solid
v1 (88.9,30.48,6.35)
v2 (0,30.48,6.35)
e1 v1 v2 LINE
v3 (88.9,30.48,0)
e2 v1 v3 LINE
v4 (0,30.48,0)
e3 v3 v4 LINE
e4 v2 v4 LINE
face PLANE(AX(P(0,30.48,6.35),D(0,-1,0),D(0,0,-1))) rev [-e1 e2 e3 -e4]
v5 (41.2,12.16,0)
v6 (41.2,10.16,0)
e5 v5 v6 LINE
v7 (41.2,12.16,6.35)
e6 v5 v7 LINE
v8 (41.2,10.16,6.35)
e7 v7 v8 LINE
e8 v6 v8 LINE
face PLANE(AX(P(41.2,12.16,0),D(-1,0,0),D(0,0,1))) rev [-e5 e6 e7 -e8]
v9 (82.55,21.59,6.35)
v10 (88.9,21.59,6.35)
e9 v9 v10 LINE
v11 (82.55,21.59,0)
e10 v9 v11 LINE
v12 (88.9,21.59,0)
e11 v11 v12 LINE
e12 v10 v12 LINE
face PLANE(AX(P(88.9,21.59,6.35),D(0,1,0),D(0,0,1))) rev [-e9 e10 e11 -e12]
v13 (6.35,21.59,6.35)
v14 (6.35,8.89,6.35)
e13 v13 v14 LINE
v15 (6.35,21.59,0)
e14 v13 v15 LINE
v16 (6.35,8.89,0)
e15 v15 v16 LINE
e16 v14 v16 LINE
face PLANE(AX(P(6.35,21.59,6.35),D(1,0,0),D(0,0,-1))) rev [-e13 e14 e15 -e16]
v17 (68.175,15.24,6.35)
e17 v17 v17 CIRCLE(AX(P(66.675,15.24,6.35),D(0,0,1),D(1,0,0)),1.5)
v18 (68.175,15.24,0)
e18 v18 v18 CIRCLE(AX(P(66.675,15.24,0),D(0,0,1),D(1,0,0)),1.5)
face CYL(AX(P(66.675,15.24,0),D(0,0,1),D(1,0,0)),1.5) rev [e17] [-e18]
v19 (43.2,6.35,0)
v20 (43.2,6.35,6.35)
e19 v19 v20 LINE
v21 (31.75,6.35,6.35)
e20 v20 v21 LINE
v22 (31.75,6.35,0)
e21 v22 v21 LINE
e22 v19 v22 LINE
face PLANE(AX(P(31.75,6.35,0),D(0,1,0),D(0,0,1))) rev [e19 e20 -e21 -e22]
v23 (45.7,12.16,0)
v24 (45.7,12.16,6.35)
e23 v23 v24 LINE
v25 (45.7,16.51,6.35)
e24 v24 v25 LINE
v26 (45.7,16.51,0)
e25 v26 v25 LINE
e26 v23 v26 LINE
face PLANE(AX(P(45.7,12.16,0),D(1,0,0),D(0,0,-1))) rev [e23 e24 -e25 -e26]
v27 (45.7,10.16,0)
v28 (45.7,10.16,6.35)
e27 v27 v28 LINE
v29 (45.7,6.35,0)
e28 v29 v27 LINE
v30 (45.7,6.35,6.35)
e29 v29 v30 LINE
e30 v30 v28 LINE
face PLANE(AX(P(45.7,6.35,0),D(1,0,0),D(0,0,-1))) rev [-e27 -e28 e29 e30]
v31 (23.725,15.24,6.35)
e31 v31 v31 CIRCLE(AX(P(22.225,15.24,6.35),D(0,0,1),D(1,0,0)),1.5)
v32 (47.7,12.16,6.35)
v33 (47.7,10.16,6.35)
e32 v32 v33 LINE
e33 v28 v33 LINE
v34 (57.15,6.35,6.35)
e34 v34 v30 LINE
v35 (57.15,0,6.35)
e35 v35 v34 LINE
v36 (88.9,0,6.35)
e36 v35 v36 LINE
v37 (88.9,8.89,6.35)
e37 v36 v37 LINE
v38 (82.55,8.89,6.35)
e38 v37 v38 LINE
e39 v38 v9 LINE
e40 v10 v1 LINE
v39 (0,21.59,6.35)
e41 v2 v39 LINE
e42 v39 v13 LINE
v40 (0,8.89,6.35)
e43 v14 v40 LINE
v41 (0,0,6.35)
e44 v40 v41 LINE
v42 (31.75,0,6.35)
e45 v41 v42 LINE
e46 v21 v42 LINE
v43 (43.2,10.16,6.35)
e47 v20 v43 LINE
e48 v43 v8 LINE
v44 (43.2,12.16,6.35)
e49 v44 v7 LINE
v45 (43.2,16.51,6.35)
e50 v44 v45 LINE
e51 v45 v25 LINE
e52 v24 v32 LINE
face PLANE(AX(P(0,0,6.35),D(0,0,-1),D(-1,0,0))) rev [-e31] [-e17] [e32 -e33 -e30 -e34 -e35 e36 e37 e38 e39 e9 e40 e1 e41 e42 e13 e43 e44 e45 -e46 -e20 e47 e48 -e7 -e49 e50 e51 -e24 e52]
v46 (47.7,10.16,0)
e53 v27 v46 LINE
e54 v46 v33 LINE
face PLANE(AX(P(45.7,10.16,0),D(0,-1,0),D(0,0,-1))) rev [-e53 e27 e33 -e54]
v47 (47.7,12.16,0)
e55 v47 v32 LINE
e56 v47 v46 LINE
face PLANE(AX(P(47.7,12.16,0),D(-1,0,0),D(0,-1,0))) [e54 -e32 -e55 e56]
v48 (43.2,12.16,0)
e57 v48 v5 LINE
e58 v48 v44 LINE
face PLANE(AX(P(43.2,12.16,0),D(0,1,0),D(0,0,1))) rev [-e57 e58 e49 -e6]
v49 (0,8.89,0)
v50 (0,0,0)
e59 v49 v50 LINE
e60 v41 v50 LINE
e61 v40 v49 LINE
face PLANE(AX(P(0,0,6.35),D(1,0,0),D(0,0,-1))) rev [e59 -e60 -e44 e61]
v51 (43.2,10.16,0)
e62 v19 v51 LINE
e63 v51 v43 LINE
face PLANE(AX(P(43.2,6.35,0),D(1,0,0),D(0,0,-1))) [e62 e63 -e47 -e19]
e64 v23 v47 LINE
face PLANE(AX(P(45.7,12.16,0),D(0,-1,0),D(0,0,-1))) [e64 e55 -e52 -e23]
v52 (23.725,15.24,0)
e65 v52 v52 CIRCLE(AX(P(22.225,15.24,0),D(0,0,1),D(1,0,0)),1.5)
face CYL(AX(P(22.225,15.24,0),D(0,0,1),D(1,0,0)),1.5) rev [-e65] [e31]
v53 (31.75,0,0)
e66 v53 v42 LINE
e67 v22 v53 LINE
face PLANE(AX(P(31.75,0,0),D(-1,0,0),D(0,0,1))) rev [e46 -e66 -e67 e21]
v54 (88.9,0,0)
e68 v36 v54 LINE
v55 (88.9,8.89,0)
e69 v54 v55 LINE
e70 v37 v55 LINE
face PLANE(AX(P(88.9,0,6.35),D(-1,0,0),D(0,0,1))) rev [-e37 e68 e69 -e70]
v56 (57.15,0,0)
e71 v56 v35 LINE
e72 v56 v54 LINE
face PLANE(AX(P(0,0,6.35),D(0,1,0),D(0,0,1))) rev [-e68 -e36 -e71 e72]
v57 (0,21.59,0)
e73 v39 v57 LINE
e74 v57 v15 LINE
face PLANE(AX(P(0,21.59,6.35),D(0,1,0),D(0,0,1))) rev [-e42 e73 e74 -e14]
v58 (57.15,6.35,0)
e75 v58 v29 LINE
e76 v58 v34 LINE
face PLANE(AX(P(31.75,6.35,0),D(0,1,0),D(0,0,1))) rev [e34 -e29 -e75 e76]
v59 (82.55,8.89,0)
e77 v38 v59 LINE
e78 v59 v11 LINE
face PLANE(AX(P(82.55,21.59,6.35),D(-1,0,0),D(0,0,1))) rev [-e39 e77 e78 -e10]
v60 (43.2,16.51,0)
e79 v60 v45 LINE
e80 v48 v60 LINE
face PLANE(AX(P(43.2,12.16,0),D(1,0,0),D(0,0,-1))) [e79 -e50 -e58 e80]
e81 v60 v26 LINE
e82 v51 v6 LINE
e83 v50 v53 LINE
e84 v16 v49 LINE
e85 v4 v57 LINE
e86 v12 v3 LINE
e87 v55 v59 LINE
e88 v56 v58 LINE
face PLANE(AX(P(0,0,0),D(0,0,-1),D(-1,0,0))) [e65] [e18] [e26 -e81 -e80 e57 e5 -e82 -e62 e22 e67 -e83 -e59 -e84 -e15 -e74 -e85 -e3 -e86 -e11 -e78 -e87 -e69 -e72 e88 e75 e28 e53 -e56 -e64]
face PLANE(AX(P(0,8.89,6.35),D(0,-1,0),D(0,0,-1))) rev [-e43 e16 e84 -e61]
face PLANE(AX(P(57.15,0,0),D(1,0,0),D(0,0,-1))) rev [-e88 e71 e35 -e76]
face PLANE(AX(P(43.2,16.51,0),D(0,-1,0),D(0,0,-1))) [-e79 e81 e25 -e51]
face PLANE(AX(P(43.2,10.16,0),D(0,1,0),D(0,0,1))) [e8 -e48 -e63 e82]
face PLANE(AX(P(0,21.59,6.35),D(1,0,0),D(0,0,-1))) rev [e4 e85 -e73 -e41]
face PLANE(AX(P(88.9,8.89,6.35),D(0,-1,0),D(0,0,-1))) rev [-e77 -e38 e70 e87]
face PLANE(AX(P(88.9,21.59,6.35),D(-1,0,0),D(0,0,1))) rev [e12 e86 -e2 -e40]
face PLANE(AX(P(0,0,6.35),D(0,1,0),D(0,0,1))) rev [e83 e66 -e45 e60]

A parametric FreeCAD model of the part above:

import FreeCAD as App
import Part
import Sketcher
Q = App.Units.Quantity

doc = App.newDocument("Part")
body = doc.addObject("PartDesign::Body", "Body")

# Sketch on XY plane
sketch1 = body.newObject("Sketcher::SketchObject", "Sketch")
sketch1.AttachmentSupport = (doc.getObject("XY_Plane"), [""])
sketch1.MapMode = "FlatFace"
sketch1.addGeometry(Part.LineSegment(App.Vector(0, 30, 0), App.Vector(0, 22, 0)), False)
sketch1.addGeometry(Part.LineSegment(App.Vector(0, 22, 0), App.Vector(6, 22, 0)), False)
sketch1.addGeometry(Part.LineSegment(App.Vector(6, 22, 0), App.Vector(6, 9, 0)), False)
sketch1.addGeometry(Part.LineSegment(App.Vector(6, 9, 0), App.Vector(0, 9, 0)), False)
sketch1.addGeometry(Part.LineSegment(App.Vector(0, 9, 0), App.Vector(0, 0, 0)), False)
sketch1.addGeometry(Part.LineSegment(App.Vector(0, 0, 0), App.Vector(89, 0, 0)), False)
sketch1.addGeometry(Part.LineSegment(App.Vector(89, 0, 0), App.Vector(89, 9, 0)), False)
sketch1.addGeometry(Part.LineSegment(App.Vector(89, 9, 0), App.Vector(83, 9, 0)), False)
sketch1.addGeometry(Part.LineSegment(App.Vector(83, 9, 0), App.Vector(83, 22, 0)), False)
sketch1.addGeometry(Part.LineSegment(App.Vector(83, 22, 0), App.Vector(89, 22, 0)), False)
sketch1.addGeometry(Part.LineSegment(App.Vector(89, 22, 0), App.Vector(89, 30, 0)), False)
sketch1.addGeometry(Part.LineSegment(App.Vector(89, 30, 0), App.Vector(0, 30, 0)), False)
sketch1.addConstraint(Sketcher.Constraint("Coincident", 0, 2, 1, 1))
sketch1.addConstraint(Sketcher.Constraint("Coincident", 1, 2, 2, 1))
sketch1.addConstraint(Sketcher.Constraint("Coincident", 2, 2, 3, 1))
sketch1.addConstraint(Sketcher.Constraint("Coincident", 3, 2, 4, 1))
sketch1.addConstraint(Sketcher.Constraint("Coincident", 4, 2, 5, 1))
sketch1.addConstraint(Sketcher.Constraint("Coincident", 5, 2, 6, 1))
sketch1.addConstraint(Sketcher.Constraint("Coincident", 6, 2, 7, 1))
sketch1.addConstraint(Sketcher.Constraint("Coincident", 7, 2, 8, 1))
sketch1.addConstraint(Sketcher.Constraint("Coincident", 8, 2, 9, 1))
sketch1.addConstraint(Sketcher.Constraint("Coincident", 9, 2, 10, 1))
sketch1.addConstraint(Sketcher.Constraint("Coincident", 10, 2, 11, 1))
sketch1.addConstraint(Sketcher.Constraint("Coincident", 11, 2, 0, 1))
sketch1.addConstraint(Sketcher.Constraint("Vertical", 0))
sketch1.addConstraint(Sketcher.Constraint("Horizontal", 1))
sketch1.addConstraint(Sketcher.Constraint("Vertical", 2))
sketch1.addConstraint(Sketcher.Constraint("Horizontal", 3))
sketch1.addConstraint(Sketcher.Constraint("Vertical", 4))
sketch1.addConstraint(Sketcher.Constraint("Horizontal", 5))
sketch1.addConstraint(Sketcher.Constraint("Vertical", 6))
sketch1.addConstraint(Sketcher.Constraint("Horizontal", 7))
sketch1.addConstraint(Sketcher.Constraint("Vertical", 8))
sketch1.addConstraint(Sketcher.Constraint("Horizontal", 9))
sketch1.addConstraint(Sketcher.Constraint("Vertical", 10))
sketch1.addConstraint(Sketcher.Constraint("Horizontal", 11))
sketch1.addConstraint(Sketcher.Constraint("Coincident", 4, 2, -1, 1))
sketch1.addConstraint(Sketcher.Constraint("PointOnObject", 0, 2, -2))
sketch1.addConstraint(Sketcher.Constraint("Horizontal", 3, 2, 6, 2))
sketch1.addConstraint(Sketcher.Constraint("Horizontal", 1, 2, 8, 2))
sketch1.addConstraint(Sketcher.Constraint("Vertical", 6, 2, 9, 2))
sketch1.addConstraint(Sketcher.Constraint("Equal", 3, 7))
sketch1.addConstraint(Sketcher.Constraint("Equal", 0, 4))
sketch1.addConstraint(Sketcher.Constraint("DistanceX", 5, 1, 5, 2, Q("3.5 in")))
sketch1.addConstraint(Sketcher.Constraint("DistanceY", 2, 2, 2, 1, Q("0.5 in")))
sketch1.addConstraint(Sketcher.Constraint("DistanceX", 2, 2, 7, 2, Q("3 in")))
sketch1.addConstraint(Sketcher.Constraint("DistanceY", 0, 2, 0, 1, Q("0.35 in")))
pad1 = body.newObject("PartDesign::Pad", "Pad")
pad1.Profile = sketch1
pad1.Length = Q("0.25 in")

# Sketch on XY plane
sketch2 = body.newObject("Sketcher::SketchObject", "Sketch001")
sketch2.AttachmentSupport = (doc.getObject("XY_Plane"), [""])
sketch2.MapMode = "FlatFace"
sketch2.AttachmentOffset = App.Placement(App.Vector(0, 0, 0.25 * 25.4), App.Rotation())
sketch2.addGeometry(Part.Circle(App.Vector(22.2, 15.2, 0), App.Vector(0, 0, 1), 1.5), False)
sketch2.addGeometry(Part.Circle(App.Vector(66.7, 15.2, 0), App.Vector(0, 0, 1), 1.5), False)
sketch2.addGeometry(Part.LineSegment(App.Vector(31.8, 6.3, 0), App.Vector(31.8, 0, 0)), False)
sketch2.addGeometry(Part.LineSegment(App.Vector(31.8, 0, 0), App.Vector(57.1, 0, 0)), False)
sketch2.addGeometry(Part.LineSegment(App.Vector(57.1, 0, 0), App.Vector(57.1, 6.3, 0)), False)
sketch2.addGeometry(Part.LineSegment(App.Vector(57.1, 6.3, 0), App.Vector(31.8, 6.3, 0)), False)
sketch2.addConstraint(Sketcher.Constraint("Coincident", 2, 2, 3, 1))
sketch2.addConstraint(Sketcher.Constraint("Coincident", 3, 2, 4, 1))
sketch2.addConstraint(Sketcher.Constraint("Coincident", 4, 2, 5, 1))
sketch2.addConstraint(Sketcher.Constraint("Coincident", 5, 2, 2, 1))
sketch2.addConstraint(Sketcher.Constraint("Vertical", 2))
sketch2.addConstraint(Sketcher.Constraint("Horizontal", 3))
sketch2.addConstraint(Sketcher.Constraint("Vertical", 4))
sketch2.addConstraint(Sketcher.Constraint("Horizontal", 5))
sketch2.addConstraint(Sketcher.Constraint("Equal", 0, 1))
sketch2.addConstraint(Sketcher.Constraint("PointOnObject", 2, 2, -1))
sketch2.addConstraint(Sketcher.Constraint("Horizontal", 0, 3, 1, 3))
sketch2.addConstraint(Sketcher.Constraint("DistanceX", 3, 1, 3, 2, Q("1 in")))
sketch2.addConstraint(Sketcher.Constraint("DistanceY", 2, 2, 2, 1, Q("0.25 in")))
sketch2.addConstraint(Sketcher.Constraint("DistanceY", -1, 1, 0, 3, Q("0.6 in")))
sketch2.addConstraint(Sketcher.Constraint("Diameter", 0, 3.0))
sketch2.addConstraint(Sketcher.Constraint("DistanceX", -1, 1, 2, 2, Q("1.25 in")))
sketch2.addConstraint(Sketcher.Constraint("DistanceX", 0, 3, 1, 3, Q("1.75 in")))
sketch2.addConstraint(Sketcher.Constraint("DistanceX", -1, 1, 0, 3, Q("0.875 in")))
pocket1 = body.newObject("PartDesign::Pocket", "Pocket")
pocket1.Profile = sketch2
pocket1.Type = "ThroughAll"

# Sketch on XY plane
sketch3 = body.newObject("Sketcher::SketchObject", "Sketch002")
sketch3.AttachmentSupport = (doc.getObject("XY_Plane"), [""])
sketch3.MapMode = "FlatFace"
sketch3.AttachmentOffset = App.Placement(App.Vector(0, 0, 0.25 * 25.4), App.Rotation())
sketch3.addGeometry(Part.LineSegment(App.Vector(43.2, 6.3, 0), App.Vector(45.7, 6.3, 0)), False)
sketch3.addGeometry(Part.LineSegment(App.Vector(45.7, 6.3, 0), App.Vector(45.7, 10.2, 0)), False)
sketch3.addGeometry(Part.LineSegment(App.Vector(45.7, 10.2, 0), App.Vector(47.7, 10.2, 0)), False)
sketch3.addGeometry(Part.LineSegment(App.Vector(47.7, 10.2, 0), App.Vector(47.7, 12.2, 0)), False)
sketch3.addGeometry(Part.LineSegment(App.Vector(47.7, 12.2, 0), App.Vector(45.7, 12.2, 0)), False)
sketch3.addGeometry(Part.LineSegment(App.Vector(45.7, 12.2, 0), App.Vector(45.7, 16.5, 0)), False)
sketch3.addGeometry(Part.LineSegment(App.Vector(45.7, 16.5, 0), App.Vector(43.2, 16.5, 0)), False)
sketch3.addGeometry(Part.LineSegment(App.Vector(43.2, 16.5, 0), App.Vector(43.2, 12.2, 0)), False)
sketch3.addGeometry(Part.LineSegment(App.Vector(43.2, 12.2, 0), App.Vector(41.2, 12.2, 0)), False)
sketch3.addGeometry(Part.LineSegment(App.Vector(41.2, 12.2, 0), App.Vector(41.2, 10.2, 0)), False)
sketch3.addGeometry(Part.LineSegment(App.Vector(41.2, 10.2, 0), App.Vector(43.2, 10.2, 0)), False)
sketch3.addGeometry(Part.LineSegment(App.Vector(43.2, 10.2, 0), App.Vector(43.2, 6.3, 0)), False)
sketch3.addConstraint(Sketcher.Constraint("Coincident", 0, 2, 1, 1))
sketch3.addConstraint(Sketcher.Constraint("Coincident", 1, 2, 2, 1))
sketch3.addConstraint(Sketcher.Constraint("Coincident", 2, 2, 3, 1))
sketch3.addConstraint(Sketcher.Constraint("Coincident", 3, 2, 4, 1))
sketch3.addConstraint(Sketcher.Constraint("Coincident", 4, 2, 5, 1))
sketch3.addConstraint(Sketcher.Constraint("Coincident", 5, 2, 6, 1))
sketch3.addConstraint(Sketcher.Constraint("Coincident", 6, 2, 7, 1))
sketch3.addConstraint(Sketcher.Constraint("Coincident", 7, 2, 8, 1))
sketch3.addConstraint(Sketcher.Constraint("Coincident", 8, 2, 9, 1))
sketch3.addConstraint(Sketcher.Constraint("Coincident", 9, 2, 10, 1))
sketch3.addConstraint(Sketcher.Constraint("Coincident", 10, 2, 11, 1))
sketch3.addConstraint(Sketcher.Constraint("Coincident", 11, 2, 0, 1))
sketch3.addConstraint(Sketcher.Constraint("Horizontal", 0))
sketch3.addConstraint(Sketcher.Constraint("Vertical", 1))
sketch3.addConstraint(Sketcher.Constraint("Horizontal", 2))
sketch3.addConstraint(Sketcher.Constraint("Vertical", 3))
sketch3.addConstraint(Sketcher.Constraint("Horizontal", 4))
sketch3.addConstraint(Sketcher.Constraint("Vertical", 5))
sketch3.addConstraint(Sketcher.Constraint("Horizontal", 6))
sketch3.addConstraint(Sketcher.Constraint("Vertical", 7))
sketch3.addConstraint(Sketcher.Constraint("Horizontal", 8))
sketch3.addConstraint(Sketcher.Constraint("Vertical", 9))
sketch3.addConstraint(Sketcher.Constraint("Horizontal", 10))
sketch3.addConstraint(Sketcher.Constraint("Vertical", 11))
sketch3.addConstraint(Sketcher.Constraint("Horizontal", 4, 2, 7, 2))
sketch3.addConstraint(Sketcher.Constraint("Horizontal", 2, 2, 9, 2))
sketch3.addConstraint(Sketcher.Constraint("Vertical", 1, 2, 4, 2))
sketch3.addConstraint(Sketcher.Constraint("Vertical", 7, 2, 10, 2))
sketch3.addConstraint(Sketcher.Constraint("Equal", 4, 8))
sketch3.addConstraint(Sketcher.Constraint("Equal", 10, 3))
sketch3.addConstraint(Sketcher.Constraint("DistanceY", 1, 1, 1, 2, Q("0.15 in")))
sketch3.addConstraint(Sketcher.Constraint("DistanceY", -1, 1, 1, 2, Q("0.4 in")))
sketch3.addConstraint(Sketcher.Constraint("DistanceY", 0, 2, 5, 2, Q("0.4 in")))
sketch3.addConstraint(Sketcher.Constraint("DistanceX", 0, 1, 0, 2, 2.5))
sketch3.addConstraint(Sketcher.Constraint("DistanceX", 2, 1, 2, 2, 2.0))
sketch3.addConstraint(Sketcher.Constraint("DistanceX", -1, 1, 0, 2, 45.7))
pocket2 = body.newObject("PartDesign::Pocket", "Pocket001")
pocket2.Profile = sketch3
pocket2.Type = "ThroughAll"

doc.recompute()
